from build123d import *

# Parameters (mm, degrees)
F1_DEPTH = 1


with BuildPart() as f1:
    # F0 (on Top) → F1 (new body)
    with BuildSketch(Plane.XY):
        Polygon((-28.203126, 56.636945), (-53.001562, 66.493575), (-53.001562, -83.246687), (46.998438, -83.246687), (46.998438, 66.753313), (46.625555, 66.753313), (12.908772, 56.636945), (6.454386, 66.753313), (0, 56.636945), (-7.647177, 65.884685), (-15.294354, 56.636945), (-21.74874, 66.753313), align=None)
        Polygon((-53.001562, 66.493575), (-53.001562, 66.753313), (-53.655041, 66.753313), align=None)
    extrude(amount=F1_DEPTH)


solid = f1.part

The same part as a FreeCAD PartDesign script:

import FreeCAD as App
import Part
import Sketcher

V = App.Vector


def add_polygon(sketch, points):
    """Adds a closed chain of lines whose ends are joined by coincident constraints."""
    first, n = sketch.GeometryCount, len(points)
    for a, b in zip(points, points[1:] + points[:1]):
        sketch.addGeometry(Part.LineSegment(App.Vector(*a, 0), App.Vector(*b, 0)), False)
    for i in range(n):
        sketch.addConstraint(Sketcher.Constraint("Coincident", first + i, 2, first + (i + 1) % n, 1))

doc = App.newDocument("Part")
body = doc.addObject("PartDesign::Body", "Body")
body.AllowCompound = True

sketch1 = doc.addObject("Sketcher::SketchObject", "Sketch")
body.addObject(sketch1)
sketch1.AttachmentSupport = (doc.XY_Plane, [""])
sketch1.MapMode = "FlatFace"
add_polygon(sketch1, [(-28.203126, 56.636945), (-53.001562, 66.493575), (-53.001562, -83.246687), (46.998438, -83.246687), (46.998438, 66.753313), (46.625555, 66.753313), (12.908772, 56.636945), (6.454386, 66.753313), (0, 56.636945), (-7.647177, 65.884685), (-15.294354, 56.636945), (-21.74874, 66.753313)])
add_polygon(sketch1, [(-53.001562, 66.493575), (-53.001562, 66.753313), (-53.655041, 66.753313)])
sketch1.addConstraint([
    Sketcher.Constraint("Vertical", 1),
    Sketcher.Constraint("Horizontal", 2),
    Sketcher.Constraint("Vertical", 3),
    Sketcher.Constraint("Horizontal", 4),
    Sketcher.Constraint("Vertical", 12),
    Sketcher.Constraint("Horizontal", 13),
    Sketcher.Constraint("Coincident", 14, 2, 0, 2),
    Sketcher.Constraint("PointOnObject", 7, 2, -2),
    Sketcher.Constraint("DistanceX", 2, 1, 2, 2, 100.0),
    Sketcher.Constraint("DistanceY", 3, 1, 3, 2, 150.0),
    Sketcher.Constraint("Distance", 6, 12.0),
    Sketcher.Constraint("Distance", 7, 12.0),
    Sketcher.Constraint("Distance", 8, 12.0),
    Sketcher.Constraint("Distance", 9, 12.0),
    Sketcher.Constraint("Distance", 10, 12.0),
    Sketcher.Constraint("Distance", 11, 12.0),
    Sketcher.Constraint("DistanceY", 2, 2, 6, 2, 150.0),
    Sketcher.Constraint("DistanceX", 13, 2, 13, 1, 0.653479),
    Sketcher.Constraint("DistanceY", 1, 2, 1, 1, 149.740262),
    Sketcher.Constraint("DistanceX", 13, 2, 10, 2, 31.906301),
    Sketcher.Constraint("DistanceX", 4, 2, 4, 1, 0.372883),
    Sketcher.Constraint("DistanceY", 12, 1, 12, 2, 0.259738),
    Sketcher.Constraint("DistanceX", 10, 2, -1, 1, 21.74874),
    Sketcher.Constraint("DistanceY", 5, 2, 4, 2, 10.116368),
    Sketcher.Constraint("DistanceX", 6, 2, 4, 2, 40.171169),
    Sketcher.Constraint("DistanceY", 7, 2, 8, 2, 9.24774),
    Sketcher.Constraint("DistanceY", 9, 2, 8, 2, 9.24774),
    Sketcher.Constraint("DistanceY", 11, 2, 10, 2, 10.116368),
    Sketcher.Constraint("DistanceY", -1, 1, 0, 2, 66.493575),
])
pad1 = doc.addObject("PartDesign::Pad", "Pad")
body.addObject(pad1)
pad1.Profile = sketch1
pad1.Length = 1

doc.recompute()
